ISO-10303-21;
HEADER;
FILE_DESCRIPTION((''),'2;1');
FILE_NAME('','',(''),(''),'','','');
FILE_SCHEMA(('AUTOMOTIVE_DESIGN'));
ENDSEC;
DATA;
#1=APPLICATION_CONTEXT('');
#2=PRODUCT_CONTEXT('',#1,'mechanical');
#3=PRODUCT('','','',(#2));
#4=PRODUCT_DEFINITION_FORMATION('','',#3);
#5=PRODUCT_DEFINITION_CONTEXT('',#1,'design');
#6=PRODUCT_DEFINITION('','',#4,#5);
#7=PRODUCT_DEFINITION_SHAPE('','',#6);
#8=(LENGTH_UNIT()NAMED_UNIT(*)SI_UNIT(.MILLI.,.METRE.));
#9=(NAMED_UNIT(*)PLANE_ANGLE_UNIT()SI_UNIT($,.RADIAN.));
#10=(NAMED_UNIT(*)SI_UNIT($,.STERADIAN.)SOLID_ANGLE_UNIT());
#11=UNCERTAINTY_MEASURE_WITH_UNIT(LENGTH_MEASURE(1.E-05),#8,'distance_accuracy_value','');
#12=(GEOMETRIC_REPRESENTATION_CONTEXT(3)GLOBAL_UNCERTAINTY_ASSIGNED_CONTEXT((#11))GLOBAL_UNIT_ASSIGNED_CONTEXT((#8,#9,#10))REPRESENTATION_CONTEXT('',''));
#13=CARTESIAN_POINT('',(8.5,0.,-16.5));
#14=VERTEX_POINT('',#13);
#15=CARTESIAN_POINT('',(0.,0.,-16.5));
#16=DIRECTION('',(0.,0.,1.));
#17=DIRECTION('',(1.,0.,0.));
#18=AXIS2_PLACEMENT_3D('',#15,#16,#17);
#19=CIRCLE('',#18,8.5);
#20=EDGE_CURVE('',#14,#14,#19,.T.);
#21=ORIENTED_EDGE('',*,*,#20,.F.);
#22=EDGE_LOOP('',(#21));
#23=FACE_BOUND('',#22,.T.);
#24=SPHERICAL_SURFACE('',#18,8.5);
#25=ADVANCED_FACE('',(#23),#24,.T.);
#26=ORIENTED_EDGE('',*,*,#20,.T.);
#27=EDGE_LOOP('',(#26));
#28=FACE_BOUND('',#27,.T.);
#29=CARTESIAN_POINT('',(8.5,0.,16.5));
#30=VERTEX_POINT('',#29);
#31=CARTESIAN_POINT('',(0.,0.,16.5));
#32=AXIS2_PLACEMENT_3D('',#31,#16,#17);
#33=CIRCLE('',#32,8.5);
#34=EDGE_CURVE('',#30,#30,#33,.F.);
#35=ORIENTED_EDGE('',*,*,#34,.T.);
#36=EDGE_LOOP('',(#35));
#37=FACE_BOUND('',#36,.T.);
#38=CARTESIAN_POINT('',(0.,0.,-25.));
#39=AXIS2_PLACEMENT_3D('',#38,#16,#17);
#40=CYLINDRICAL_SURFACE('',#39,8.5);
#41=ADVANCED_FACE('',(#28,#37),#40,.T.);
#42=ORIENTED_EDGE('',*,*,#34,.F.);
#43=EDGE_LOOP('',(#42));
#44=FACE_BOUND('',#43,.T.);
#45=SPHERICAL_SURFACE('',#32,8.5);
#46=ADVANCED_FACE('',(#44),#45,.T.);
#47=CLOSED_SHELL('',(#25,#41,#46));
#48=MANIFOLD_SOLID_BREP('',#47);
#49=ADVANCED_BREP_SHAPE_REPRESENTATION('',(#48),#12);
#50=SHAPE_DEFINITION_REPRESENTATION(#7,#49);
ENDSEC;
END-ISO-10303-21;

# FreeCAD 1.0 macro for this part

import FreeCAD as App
import Part
import Sketcher
from FreeCAD import Vector


def edges_at(feature, points):
    """Names of the edges that pass closest to the given points."""
    edges = feature.Shape.Edges
    near = lambda p: min(range(len(edges)), key=lambda i: edges[i].distToShape(Part.Vertex(*p))[0])
    return sorted({f"Edge{near(p) + 1}" for p in points})

doc = App.newDocument("Part")
body = doc.addObject("PartDesign::Body", "Body")

sketch1 = body.newObject("Sketcher::SketchObject", "Sketch")
sketch1.AttachmentSupport = (doc.getObject("XY_Plane"), [""])
sketch1.MapMode = "FlatFace"
sketch1.addGeometry(Part.Circle(Vector(0, 0, 0), Vector(0, 0, 1), 8), False)
sketch1.addConstraint([
    Sketcher.Constraint("Coincident", 0, 3, -1, 1),
    Sketcher.Constraint("Diameter", 0, 17.0),
])
pad1 = body.newObject("PartDesign::Pad", "Pad")
pad1.Profile = sketch1
pad1.Type = "TwoLengths"
pad1.Length = 25
pad1.Length2 = 25
doc.recompute()

fillet = body.newObject("PartDesign::Fillet", "Fillet")
fillet.Base = (pad1, edges_at(pad1, [(-8.5, 0, 25), (-8.5, 0, -25)]))
fillet.Radius = 8.5

doc.recompute()
